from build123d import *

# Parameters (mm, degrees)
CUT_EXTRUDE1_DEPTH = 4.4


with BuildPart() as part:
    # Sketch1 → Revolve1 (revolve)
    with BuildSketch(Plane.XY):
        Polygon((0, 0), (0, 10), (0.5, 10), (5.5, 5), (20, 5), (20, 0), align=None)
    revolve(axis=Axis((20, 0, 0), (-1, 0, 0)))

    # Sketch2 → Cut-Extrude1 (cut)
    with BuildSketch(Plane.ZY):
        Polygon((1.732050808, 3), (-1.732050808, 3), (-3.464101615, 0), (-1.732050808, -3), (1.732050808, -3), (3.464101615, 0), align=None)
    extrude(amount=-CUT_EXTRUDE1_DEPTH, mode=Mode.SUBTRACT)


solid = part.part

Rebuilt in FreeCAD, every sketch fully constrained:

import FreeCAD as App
import Part
import Sketcher
Q = App.Units.Quantity

doc = App.newDocument("Part")
params = doc.addObject("Spreadsheet::Sheet", "Params")
for row, (alias, value) in enumerate([
    ("sketch1_width", "20 mm"),
    ("sketch1_height", "10 mm"),
    ("sketch1_height2", "5 mm"),
    ("sketch1_width2", "14.5 mm"),
    ("revolution_angle", "360 deg"),
    ("pocket1_length", "4.4 mm"),
], start=1):
    params.set(f"A{row}", alias)
    params.set(f"B{row}", "=" + value)
    params.setAlias(f"B{row}", alias)

body = doc.addObject("PartDesign::Body", "Body")

sketch1 = body.newObject("Sketcher::SketchObject", "Sketch")
sketch1.AttachmentSupport = (doc.getObject("XY_Plane"), [""])
sketch1.MapMode = "FlatFace"
sketch1.addGeometry([
    Part.LineSegment(App.Vector(0, 10, 0), App.Vector(0, 0, 0)),
    Part.LineSegment(App.Vector(0, 0, 0), App.Vector(20, 0, 0)),
    Part.LineSegment(App.Vector(20, 0, 0), App.Vector(20, 5, 0)),
    Part.LineSegment(App.Vector(20, 5, 0), App.Vector(5.5, 5, 0)),
    Part.LineSegment(App.Vector(5.5, 5, 0), App.Vector(0.5, 10, 0)),
    Part.LineSegment(App.Vector(0.5, 10, 0), App.Vector(0, 10, 0)),
], False)
sketch1.addConstraint([
    Sketcher.Constraint("Coincident", 0, 2, 1, 1),
    Sketcher.Constraint("Coincident", 1, 2, 2, 1),
    Sketcher.Constraint("Coincident", 2, 2, 3, 1),
    Sketcher.Constraint("Coincident", 3, 2, 4, 1),
    Sketcher.Constraint("Coincident", 4, 2, 5, 1),
    Sketcher.Constraint("Coincident", 5, 2, 0, 1),
    Sketcher.Constraint("Vertical", 0),
    Sketcher.Constraint("Horizontal", 1),
    Sketcher.Constraint("Vertical", 2),
    Sketcher.Constraint("Horizontal", 3),
    Sketcher.Constraint("Horizontal", 5),
    Sketcher.Constraint("Coincident", 0, 2, -1, 1),
    Sketcher.Constraint("DistanceX", 1, 1, 1, 2, 20.0),
    Sketcher.Constraint("DistanceY", 0, 2, 0, 1, 10.0),
    Sketcher.Constraint("DistanceY", 2, 1, 2, 2, 5.0),
    Sketcher.Constraint("Angle", 4, Q("135 deg")),
    Sketcher.Constraint("DistanceX", 3, 2, 3, 1, 14.5),
])
sketch1.setExpression("Constraints[12]", "Params.sketch1_width")
sketch1.setExpression("Constraints[13]", "Params.sketch1_height")
sketch1.setExpression("Constraints[14]", "Params.sketch1_height2")
sketch1.setExpression("Constraints[16]", "Params.sketch1_width2")
revolution = body.newObject("PartDesign::Revolution", "Revolution")
revolution.Profile = sketch1
revolution.ReferenceAxis = (sketch1, ["H_Axis"])
revolution.setExpression("Angle", "Params.revolution_angle")

sketch2 = body.newObject("Sketcher::SketchObject", "Sketch001")
sketch2.AttachmentSupport = (doc.getObject("YZ_Plane"), [""])
sketch2.MapMode = "FlatFace"
sketch2.addGeometry([
    Part.LineSegment(App.Vector(3, 1.732051, 0), App.Vector(3, -1.732051, 0)),
    Part.LineSegment(App.Vector(3, -1.732051, 0), App.Vector(0, -3.464102, 0)),
    Part.LineSegment(App.Vector(0, -3.464102, 0), App.Vector(-3, -1.732051, 0)),
    Part.LineSegment(App.Vector(-3, -1.732051, 0), App.Vector(-3, 1.732051, 0)),
    Part.LineSegment(App.Vector(-3, 1.732051, 0), App.Vector(0, 3.464102, 0)),
    Part.LineSegment(App.Vector(0, 3.464102, 0), App.Vector(3, 1.732051, 0)),
], False)
sketch2.addConstraint([
    Sketcher.Constraint("Coincident", 0, 2, 1, 1),
    Sketcher.Constraint("Coincident", 1, 2, 2, 1),
    Sketcher.Constraint("Coincident", 2, 2, 3, 1),
    Sketcher.Constraint("Coincident", 3, 2, 4, 1),
    Sketcher.Constraint("Coincident", 4, 2, 5, 1),
    Sketcher.Constraint("Coincident", 5, 2, 0, 1),
    Sketcher.Constraint("Vertical", 0),
    Sketcher.Constraint("Vertical", 3),
    Sketcher.Constraint("Symmetric", 0, 2, 3, 2, -1, 1),
    Sketcher.Constraint("Symmetric", 1, 2, 4, 2, -1, 1),
    Sketcher.Constraint("PointOnObject", 1, 2, -2),
    Sketcher.Constraint("Parallel", 2, 5),
    Sketcher.Constraint("Horizontal", 0, 2, 2, 2),
    Sketcher.Constraint("Angle", 1, Q("-150 deg")),
    Sketcher.Constraint("DistanceX", -1, 1, 0, 2, 3.0),
    Sketcher.Constraint("DistanceY", 0, 2, 0, 1, 3.464102),
])
pocket1 = body.newObject("PartDesign::Pocket", "Pocket")
pocket1.Profile = sketch2
pocket1.setExpression("Length", "Params.pocket1_length")
pocket1.Reversed = True

doc.recompute()
